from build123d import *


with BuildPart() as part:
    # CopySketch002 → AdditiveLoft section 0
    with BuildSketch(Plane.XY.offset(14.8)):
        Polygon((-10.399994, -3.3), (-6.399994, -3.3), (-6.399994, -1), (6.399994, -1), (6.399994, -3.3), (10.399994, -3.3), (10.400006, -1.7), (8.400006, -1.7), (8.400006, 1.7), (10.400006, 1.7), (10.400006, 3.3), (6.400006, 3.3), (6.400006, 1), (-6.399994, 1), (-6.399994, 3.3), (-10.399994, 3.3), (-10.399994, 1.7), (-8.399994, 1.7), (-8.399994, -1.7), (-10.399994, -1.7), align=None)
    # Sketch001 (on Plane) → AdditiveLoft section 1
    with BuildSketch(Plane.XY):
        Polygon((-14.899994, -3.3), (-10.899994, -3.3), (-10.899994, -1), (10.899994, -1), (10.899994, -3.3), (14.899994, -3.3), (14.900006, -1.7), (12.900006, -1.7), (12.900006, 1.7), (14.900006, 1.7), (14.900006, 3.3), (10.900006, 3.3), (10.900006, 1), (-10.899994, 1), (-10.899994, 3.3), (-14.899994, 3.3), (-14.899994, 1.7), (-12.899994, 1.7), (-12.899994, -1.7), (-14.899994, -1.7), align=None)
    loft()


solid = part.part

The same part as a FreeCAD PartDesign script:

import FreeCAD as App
import Part
import Sketcher

V = App.Vector
Q = App.Units.Quantity

doc = App.newDocument("Part")
body = doc.addObject("PartDesign::Body", "Body")

# Sketch on XY plane
sketch1 = doc.addObject("Sketcher::SketchObject", "Sketch")
body.addObject(sketch1)
sketch1.AttachmentSupport = (doc.XY_Plane, [""])
sketch1.MapMode = "FlatFace"
sketch1.AttachmentOffset = App.Placement(V(0, 0, 14.8), App.Rotation())
sketch1.addGeometry([
    Part.LineSegment(V(-10.4, -3.3, 0), V(-6.4, -3.3, 0)),  # 0
    Part.LineSegment(V(-6.4, -3.3, 0), V(-6.4, -1, 0)),  # 1
    Part.LineSegment(V(-6.4, -1, 0), V(6.4, -1, 0)),  # 2
    Part.LineSegment(V(6.4, -1, 0), V(6.4, -3.3, 0)),  # 3
    Part.LineSegment(V(6.4, -3.3, 0), V(10.4, -3.3, 0)),  # 4
    Part.LineSegment(V(10.4, -3.3, 0), V(10.4, -1.7, 0)),  # 5
    Part.LineSegment(V(10.4, -1.7, 0), V(8.4, -1.7, 0)),  # 6
    Part.LineSegment(V(8.4, -1.7, 0), V(8.4, 1.7, 0)),  # 7
    Part.LineSegment(V(8.4, 1.7, 0), V(10.4, 1.7, 0)),  # 8
    Part.LineSegment(V(10.4, 1.7, 0), V(10.4, 3.3, 0)),  # 9
    Part.LineSegment(V(10.4, 3.3, 0), V(6.4, 3.3, 0)),  # 10
    Part.LineSegment(V(6.4, 3.3, 0), V(6.4, 1, 0)),  # 11
    Part.LineSegment(V(6.4, 1, 0), V(-6.4, 1, 0)),  # 12
    Part.LineSegment(V(-6.4, 1, 0), V(-6.4, 3.3, 0)),  # 13
    Part.LineSegment(V(-6.4, 3.3, 0), V(-10.4, 3.3, 0)),  # 14
    Part.LineSegment(V(-10.4, 3.3, 0), V(-10.4, 1.7, 0)),  # 15
    Part.LineSegment(V(-10.4, 1.7, 0), V(-8.4, 1.7, 0)),  # 16
    Part.LineSegment(V(-8.4, 1.7, 0), V(-8.4, -1.7, 0)),  # 17
    Part.LineSegment(V(-8.4, -1.7, 0), V(-10.4, -1.7, 0)),  # 18
    Part.LineSegment(V(-10.4, -1.7, 0), V(-10.4, -3.3, 0)),  # 19
], False)
sketch1.addConstraint([
    Sketcher.Constraint("Coincident", 0, 2, 1, 1),
    Sketcher.Constraint("Coincident", 1, 2, 2, 1),
    Sketcher.Constraint("Coincident", 2, 2, 3, 1),
    Sketcher.Constraint("Coincident", 3, 2, 4, 1),
    Sketcher.Constraint("Coincident", 4, 2, 5, 1),
    Sketcher.Constraint("Coincident", 5, 2, 6, 1),
    Sketcher.Constraint("Coincident", 6, 2, 7, 1),
    Sketcher.Constraint("Coincident", 7, 2, 8, 1),
    Sketcher.Constraint("Coincident", 8, 2, 9, 1),
    Sketcher.Constraint("Coincident", 9, 2, 10, 1),
    Sketcher.Constraint("Coincident", 10, 2, 11, 1),
    Sketcher.Constraint("Coincident", 11, 2, 12, 1),
    Sketcher.Constraint("Coincident", 12, 2, 13, 1),
    Sketcher.Constraint("Coincident", 13, 2, 14, 1),
    Sketcher.Constraint("Coincident", 14, 2, 15, 1),
    Sketcher.Constraint("Coincident", 15, 2, 16, 1),
    Sketcher.Constraint("Coincident", 16, 2, 17, 1),
    Sketcher.Constraint("Coincident", 17, 2, 18, 1),
    Sketcher.Constraint("Coincident", 18, 2, 19, 1),
    Sketcher.Constraint("Coincident", 19, 2, 0, 1),
    Sketcher.Constraint("Horizontal", 0),
    Sketcher.Constraint("Vertical", 1),
    Sketcher.Constraint("Horizontal", 2),
    Sketcher.Constraint("Vertical", 3),
    Sketcher.Constraint("Horizontal", 4),
    Sketcher.Constraint("Horizontal", 6),
    Sketcher.Constraint("Vertical", 7),
    Sketcher.Constraint("Horizontal", 8),
    Sketcher.Constraint("Vertical", 9),
    Sketcher.Constraint("Horizontal", 10),
    Sketcher.Constraint("Vertical", 11),
    Sketcher.Constraint("Horizontal", 12),
    Sketcher.Constraint("Vertical", 13),
    Sketcher.Constraint("Horizontal", 14),
    Sketcher.Constraint("Vertical", 15),
    Sketcher.Constraint("Horizontal", 16),
    Sketcher.Constraint("Vertical", 17),
    Sketcher.Constraint("Horizontal", 18),
    Sketcher.Constraint("Vertical", 19),
    Sketcher.Constraint("Symmetric", 2, 2, 12, 2, -1, 1),
    Sketcher.Constraint("Symmetric", 4, 2, 14, 2, -1, 1),
    Sketcher.Constraint("Symmetric", 0, 2, 3, 2, -2),
    Sketcher.Constraint("Symmetric", 5, 2, 8, 2, -1),
    Sketcher.Constraint("Symmetric", 15, 2, 18, 2, -1),
    Sketcher.Constraint("Horizontal", 10, 2, 13, 2),
    Sketcher.Constraint("Horizontal", 8, 2, 15, 2),
    Sketcher.Constraint("Equal", 4, 10),
    Sketcher.Constraint("Equal", 8, 16),
    Sketcher.Constraint("DistanceX", 0, 1, 0, 2, Q("4 mm")),
    Sketcher.Constraint("DistanceX", 6, 2, 6, 1, Q("2 mm")),
    Sketcher.Constraint("DistanceX", 12, 2, 12, 1, Q("12.8 mm")),
    Sketcher.Constraint("DistanceY", 1, 1, 1, 2, Q("2.3 mm")),
    Sketcher.Constraint("DistanceY", 7, 1, 7, 2, Q("3.4 mm")),
    Sketcher.Constraint("DistanceY", 9, 1, 9, 2, Q("1.6 mm")),
    Sketcher.Constraint("DistanceX", 2, 1, 2, 2, Q("12.799988 mm")),
])

# Sketch on XY plane
sketch2 = doc.addObject("Sketcher::SketchObject", "Sketch001")
body.addObject(sketch2)
sketch2.AttachmentSupport = (doc.XY_Plane, [""])
sketch2.MapMode = "FlatFace"
sketch2.addGeometry([
    Part.LineSegment(V(-14.9, -3.3, 0), V(-10.9, -3.3, 0)),  # 0
    Part.LineSegment(V(-10.9, -3.3, 0), V(-10.9, -1, 0)),  # 1
    Part.LineSegment(V(-10.9, -1, 0), V(10.9, -1, 0)),  # 2
    Part.LineSegment(V(10.9, -1, 0), V(10.9, -3.3, 0)),  # 3
    Part.LineSegment(V(10.9, -3.3, 0), V(14.9, -3.3, 0)),  # 4
    Part.LineSegment(V(14.9, -3.3, 0), V(14.9, -1.7, 0)),  # 5
    Part.LineSegment(V(14.9, -1.7, 0), V(12.9, -1.7, 0)),  # 6
    Part.LineSegment(V(12.9, -1.7, 0), V(12.9, 1.7, 0)),  # 7
    Part.LineSegment(V(12.9, 1.7, 0), V(14.9, 1.7, 0)),  # 8
    Part.LineSegment(V(14.9, 1.7, 0), V(14.9, 3.3, 0)),  # 9
    Part.LineSegment(V(14.9, 3.3, 0), V(10.9, 3.3, 0)),  # 10
    Part.LineSegment(V(10.9, 3.3, 0), V(10.9, 1, 0)),  # 11
    Part.LineSegment(V(10.9, 1, 0), V(-10.9, 1, 0)),  # 12
    Part.LineSegment(V(-10.9, 1, 0), V(-10.9, 3.3, 0)),  # 13
    Part.LineSegment(V(-10.9, 3.3, 0), V(-14.9, 3.3, 0)),  # 14
    Part.LineSegment(V(-14.9, 3.3, 0), V(-14.9, 1.7, 0)),  # 15
    Part.LineSegment(V(-14.9, 1.7, 0), V(-12.9, 1.7, 0)),  # 16
    Part.LineSegment(V(-12.9, 1.7, 0), V(-12.9, -1.7, 0)),  # 17
    Part.LineSegment(V(-12.9, -1.7, 0), V(-14.9, -1.7, 0)),  # 18
    Part.LineSegment(V(-14.9, -1.7, 0), V(-14.9, -3.3, 0)),  # 19
], False)
sketch2.addConstraint([
    Sketcher.Constraint("Coincident", 0, 2, 1, 1),
    Sketcher.Constraint("Coincident", 1, 2, 2, 1),
    Sketcher.Constraint("Coincident", 2, 2, 3, 1),
    Sketcher.Constraint("Coincident", 3, 2, 4, 1),
    Sketcher.Constraint("Coincident", 4, 2, 5, 1),
    Sketcher.Constraint("Coincident", 5, 2, 6, 1),
    Sketcher.Constraint("Coincident", 6, 2, 7, 1),
    Sketcher.Constraint("Coincident", 7, 2, 8, 1),
    Sketcher.Constraint("Coincident", 8, 2, 9, 1),
    Sketcher.Constraint("Coincident", 9, 2, 10, 1),
    Sketcher.Constraint("Coincident", 10, 2, 11, 1),
    Sketcher.Constraint("Coincident", 11, 2, 12, 1),
    Sketcher.Constraint("Coincident", 12, 2, 13, 1),
    Sketcher.Constraint("Coincident", 13, 2, 14, 1),
    Sketcher.Constraint("Coincident", 14, 2, 15, 1),
    Sketcher.Constraint("Coincident", 15, 2, 16, 1),
    Sketcher.Constraint("Coincident", 16, 2, 17, 1),
    Sketcher.Constraint("Coincident", 17, 2, 18, 1),
    Sketcher.Constraint("Coincident", 18, 2, 19, 1),
    Sketcher.Constraint("Coincident", 19, 2, 0, 1),
    Sketcher.Constraint("Horizontal", 0),
    Sketcher.Constraint("Vertical", 1),
    Sketcher.Constraint("Horizontal", 2),
    Sketcher.Constraint("Vertical", 3),
    Sketcher.Constraint("Horizontal", 4),
    Sketcher.Constraint("Horizontal", 6),
    Sketcher.Constraint("Vertical", 7),
    Sketcher.Constraint("Horizontal", 8),
    Sketcher.Constraint("Vertical", 9),
    Sketcher.Constraint("Horizontal", 10),
    Sketcher.Constraint("Vertical", 11),
    Sketcher.Constraint("Horizontal", 12),
    Sketcher.Constraint("Vertical", 13),
    Sketcher.Constraint("Horizontal", 14),
    Sketcher.Constraint("Vertical", 15),
    Sketcher.Constraint("Horizontal", 16),
    Sketcher.Constraint("Vertical", 17),
    Sketcher.Constraint("Horizontal", 18),
    Sketcher.Constraint("Vertical", 19),
    Sketcher.Constraint("Symmetric", 2, 2, 12, 2, -1, 1),
    Sketcher.Constraint("Symmetric", 4, 2, 14, 2, -1, 1),
    Sketcher.Constraint("Symmetric", 0, 2, 3, 2, -2),
    Sketcher.Constraint("Symmetric", 5, 2, 8, 2, -1),
    Sketcher.Constraint("Symmetric", 15, 2, 18, 2, -1),
    Sketcher.Constraint("Horizontal", 10, 2, 13, 2),
    Sketcher.Constraint("Horizontal", 8, 2, 15, 2),
    Sketcher.Constraint("Equal", 4, 10),
    Sketcher.Constraint("Equal", 8, 16),
    Sketcher.Constraint("DistanceX", 0, 1, 0, 2, Q("4 mm")),
    Sketcher.Constraint("DistanceX", 6, 2, 6, 1, Q("2 mm")),
    Sketcher.Constraint("DistanceX", 12, 2, 12, 1, Q("21.8 mm")),
    Sketcher.Constraint("DistanceY", 1, 1, 1, 2, Q("2.3 mm")),
    Sketcher.Constraint("DistanceY", 7, 1, 7, 2, Q("3.4 mm")),
    Sketcher.Constraint("DistanceY", 9, 1, 9, 2, Q("1.6 mm")),
    Sketcher.Constraint("DistanceX", 2, 1, 2, 2, Q("21.799988 mm")),
])

additiveloft = doc.addObject("PartDesign::AdditiveLoft", "AdditiveLoft")
body.addObject(additiveloft)
additiveloft.Profile = sketch1
additiveloft.Sections = [sketch2]

doc.recompute()
